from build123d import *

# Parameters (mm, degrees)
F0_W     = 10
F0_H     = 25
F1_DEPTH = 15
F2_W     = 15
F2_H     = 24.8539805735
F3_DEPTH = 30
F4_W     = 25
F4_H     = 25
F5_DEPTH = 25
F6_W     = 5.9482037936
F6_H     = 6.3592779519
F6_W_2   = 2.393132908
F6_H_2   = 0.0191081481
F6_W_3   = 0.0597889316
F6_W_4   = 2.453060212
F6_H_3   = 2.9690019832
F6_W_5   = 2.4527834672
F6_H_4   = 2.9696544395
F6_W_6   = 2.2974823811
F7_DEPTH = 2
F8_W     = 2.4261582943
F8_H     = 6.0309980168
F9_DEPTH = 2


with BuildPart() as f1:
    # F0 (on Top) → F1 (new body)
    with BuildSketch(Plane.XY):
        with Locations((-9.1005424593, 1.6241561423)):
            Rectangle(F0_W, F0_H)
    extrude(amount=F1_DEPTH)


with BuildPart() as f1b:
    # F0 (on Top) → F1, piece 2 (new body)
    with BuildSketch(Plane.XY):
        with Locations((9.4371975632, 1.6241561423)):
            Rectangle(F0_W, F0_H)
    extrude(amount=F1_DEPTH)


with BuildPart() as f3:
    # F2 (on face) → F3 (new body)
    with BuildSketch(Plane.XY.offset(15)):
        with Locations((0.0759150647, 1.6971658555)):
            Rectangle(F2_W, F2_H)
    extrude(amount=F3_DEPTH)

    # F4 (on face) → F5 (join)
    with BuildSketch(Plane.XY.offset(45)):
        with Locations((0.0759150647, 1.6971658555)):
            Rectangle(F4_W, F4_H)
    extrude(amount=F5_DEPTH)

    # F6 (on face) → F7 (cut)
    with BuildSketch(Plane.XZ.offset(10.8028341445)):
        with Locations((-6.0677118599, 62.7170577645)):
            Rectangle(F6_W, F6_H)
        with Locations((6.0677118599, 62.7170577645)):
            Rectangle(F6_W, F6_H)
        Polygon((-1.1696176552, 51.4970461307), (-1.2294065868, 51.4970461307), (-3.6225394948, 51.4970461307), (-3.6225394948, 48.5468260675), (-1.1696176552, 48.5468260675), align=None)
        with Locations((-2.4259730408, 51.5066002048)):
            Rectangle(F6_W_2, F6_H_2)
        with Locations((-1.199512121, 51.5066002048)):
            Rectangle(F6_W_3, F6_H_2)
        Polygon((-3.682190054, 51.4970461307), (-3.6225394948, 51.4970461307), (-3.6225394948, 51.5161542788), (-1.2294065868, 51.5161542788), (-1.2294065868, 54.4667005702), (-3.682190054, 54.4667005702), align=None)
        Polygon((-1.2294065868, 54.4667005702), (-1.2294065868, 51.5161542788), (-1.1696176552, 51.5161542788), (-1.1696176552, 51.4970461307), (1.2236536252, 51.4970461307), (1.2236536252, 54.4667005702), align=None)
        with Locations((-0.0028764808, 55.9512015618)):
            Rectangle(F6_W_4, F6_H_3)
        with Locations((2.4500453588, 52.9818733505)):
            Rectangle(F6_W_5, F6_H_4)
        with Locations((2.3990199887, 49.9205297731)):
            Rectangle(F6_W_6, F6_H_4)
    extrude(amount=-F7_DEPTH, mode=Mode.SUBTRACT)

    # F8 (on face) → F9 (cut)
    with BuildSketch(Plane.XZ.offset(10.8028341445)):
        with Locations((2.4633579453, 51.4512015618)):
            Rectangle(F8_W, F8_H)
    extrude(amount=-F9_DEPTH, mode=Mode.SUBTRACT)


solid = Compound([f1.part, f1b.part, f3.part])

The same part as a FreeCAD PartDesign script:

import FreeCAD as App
import Part
import Sketcher
from FreeCAD import Vector
Q = App.Units.Quantity

doc = App.newDocument("Part")
params = doc.addObject("Spreadsheet::Sheet", "Params")
for row, (alias, value) in enumerate([
    ("sketch1_width", "10 mm"),
    ("sketch1_height", "25 mm"),
    ("pad1_length", "15 mm"),
    ("sketch2_width", "10 mm"),
    ("sketch2_height", "25 mm"),
    ("pad2_length", "15 mm"),
    ("sketch3_width", "15 mm"),
    ("pad3_length", "30 mm"),
    ("sketch4_width", "25 mm"),
    ("pad4_length", "25 mm"),
    ("pocket1_length", "2 mm"),
    ("pocket2_length", "2 mm"),
], start=1):
    params.set(f"A{row}", alias)
    params.set(f"B{row}", "=" + value)
    params.setAlias(f"B{row}", alias)

body = doc.addObject("PartDesign::Body", "Body")

# Sketch on XY plane
sketch1 = body.newObject("Sketcher::SketchObject", "Sketch")
sketch1.AttachmentSupport = (doc.getObject("XY_Plane"), [""])
sketch1.MapMode = "FlatFace"
sketch1.addGeometry(Part.LineSegment(Vector(-14.100542, 14.124156, 0), Vector(-14.100542, -10.875844, 0)), False)
sketch1.addGeometry(Part.LineSegment(Vector(-14.100542, -10.875844, 0), Vector(-4.100542, -10.875844, 0)), False)
sketch1.addGeometry(Part.LineSegment(Vector(-4.100542, -10.875844, 0), Vector(-4.100542, 14.124156, 0)), False)
sketch1.addGeometry(Part.LineSegment(Vector(-4.100542, 14.124156, 0), Vector(-14.100542, 14.124156, 0)), False)
sketch1.addConstraint(Sketcher.Constraint("Coincident", 0, 2, 1, 1))
sketch1.addConstraint(Sketcher.Constraint("Coincident", 1, 2, 2, 1))
sketch1.addConstraint(Sketcher.Constraint("Coincident", 2, 2, 3, 1))
sketch1.addConstraint(Sketcher.Constraint("Coincident", 3, 2, 0, 1))
sketch1.addConstraint(Sketcher.Constraint("Vertical", 0))
sketch1.addConstraint(Sketcher.Constraint("Horizontal", 1))
sketch1.addConstraint(Sketcher.Constraint("Vertical", 2))
sketch1.addConstraint(Sketcher.Constraint("Horizontal", 3))
sketch1.addConstraint(Sketcher.Constraint("DistanceX", 1, 1, 1, 2, Q("10 mm")))
sketch1.addConstraint(Sketcher.Constraint("DistanceY", 0, 2, 0, 1, Q("25 mm")))
sketch1.addConstraint(Sketcher.Constraint("DistanceX", 0, 2, -1, 1, Q("14.100542 mm")))
sketch1.addConstraint(Sketcher.Constraint("DistanceY", 0, 2, -1, 1, Q("10.875844 mm")))
sketch1.setExpression("Constraints[8]", "Params.sketch1_width")
sketch1.setExpression("Constraints[9]", "Params.sketch1_height")
pad1 = body.newObject("PartDesign::Pad", "Pad")
pad1.Profile = sketch1
pad1.setExpression("Length", "Params.pad1_length")
body2 = doc.addObject("PartDesign::Body", "Body001")

# Sketch on XY plane
sketch2 = body2.newObject("Sketcher::SketchObject", "Sketch001")
sketch2.AttachmentSupport = (doc.getObject("XY_Plane001"), [""])
sketch2.MapMode = "FlatFace"
sketch2.addGeometry(Part.LineSegment(Vector(4.437198, 14.124156, 0), Vector(4.437198, -10.875844, 0)), False)
sketch2.addGeometry(Part.LineSegment(Vector(4.437198, -10.875844, 0), Vector(14.437198, -10.875844, 0)), False)
sketch2.addGeometry(Part.LineSegment(Vector(14.437198, -10.875844, 0), Vector(14.437198, 14.124156, 0)), False)
sketch2.addGeometry(Part.LineSegment(Vector(14.437198, 14.124156, 0), Vector(4.437198, 14.124156, 0)), False)
sketch2.addConstraint(Sketcher.Constraint("Coincident", 0, 2, 1, 1))
sketch2.addConstraint(Sketcher.Constraint("Coincident", 1, 2, 2, 1))
sketch2.addConstraint(Sketcher.Constraint("Coincident", 2, 2, 3, 1))
sketch2.addConstraint(Sketcher.Constraint("Coincident", 3, 2, 0, 1))
sketch2.addConstraint(Sketcher.Constraint("Vertical", 0))
sketch2.addConstraint(Sketcher.Constraint("Horizontal", 1))
sketch2.addConstraint(Sketcher.Constraint("Vertical", 2))
sketch2.addConstraint(Sketcher.Constraint("Horizontal", 3))
sketch2.addConstraint(Sketcher.Constraint("DistanceX", 1, 1, 1, 2, Q("10 mm")))
sketch2.addConstraint(Sketcher.Constraint("DistanceY", 0, 2, 0, 1, Q("25 mm")))
sketch2.addConstraint(Sketcher.Constraint("DistanceX", -1, 1, 0, 2, Q("4.437198 mm")))
sketch2.addConstraint(Sketcher.Constraint("DistanceY", 0, 2, -1, 1, Q("10.875844 mm")))
sketch2.setExpression("Constraints[8]", "Params.sketch2_width")
sketch2.setExpression("Constraints[9]", "Params.sketch2_height")
pad2 = body2.newObject("PartDesign::Pad", "Pad001")
pad2.Profile = sketch2
pad2.setExpression("Length", "Params.pad2_length")
body3 = doc.addObject("PartDesign::Body", "Body002")

# Sketch on XY plane
sketch3 = body3.newObject("Sketcher::SketchObject", "Sketch002")
sketch3.AttachmentSupport = (doc.getObject("XY_Plane002"), [""])
sketch3.MapMode = "FlatFace"
sketch3.AttachmentOffset = App.Placement(Vector(0, 0, 15), App.Rotation())
sketch3.addGeometry(Part.LineSegment(Vector(-7.424085, 14.124156, 0), Vector(-7.424085, -10.729824, 0)), False)
sketch3.addGeometry(Part.LineSegment(Vector(-7.424085, -10.729824, 0), Vector(7.575915, -10.729824, 0)), False)
sketch3.addGeometry(Part.LineSegment(Vector(7.575915, -10.729824, 0), Vector(7.575915, 14.124156, 0)), False)
sketch3.addGeometry(Part.LineSegment(Vector(7.575915, 14.124156, 0), Vector(-7.424085, 14.124156, 0)), False)
sketch3.addConstraint(Sketcher.Constraint("Coincident", 0, 2, 1, 1))
sketch3.addConstraint(Sketcher.Constraint("Coincident", 1, 2, 2, 1))
sketch3.addConstraint(Sketcher.Constraint("Coincident", 2, 2, 3, 1))
sketch3.addConstraint(Sketcher.Constraint("Coincident", 3, 2, 0, 1))
sketch3.addConstraint(Sketcher.Constraint("Vertical", 0))
sketch3.addConstraint(Sketcher.Constraint("Horizontal", 1))
sketch3.addConstraint(Sketcher.Constraint("Vertical", 2))
sketch3.addConstraint(Sketcher.Constraint("Horizontal", 3))
sketch3.addConstraint(Sketcher.Constraint("DistanceX", 1, 1, 1, 2, Q("15 mm")))
sketch3.addConstraint(Sketcher.Constraint("DistanceY", 0, 2, 0, 1, Q("24.853981 mm")))
sketch3.addConstraint(Sketcher.Constraint("DistanceX", 0, 2, -1, 1, Q("7.424085 mm")))
sketch3.addConstraint(Sketcher.Constraint("DistanceY", 0, 2, -1, 1, Q("10.729824 mm")))
sketch3.setExpression("Constraints[8]", "Params.sketch3_width")
pad3 = body3.newObject("PartDesign::Pad", "Pad002")
pad3.Profile = sketch3
pad3.setExpression("Length", "Params.pad3_length")

# Sketch on XY plane
sketch4 = body3.newObject("Sketcher::SketchObject", "Sketch003")
sketch4.AttachmentSupport = (doc.getObject("XY_Plane002"), [""])
sketch4.MapMode = "FlatFace"
sketch4.AttachmentOffset = App.Placement(Vector(0, 0, 45), App.Rotation())
sketch4.addGeometry(Part.LineSegment(Vector(-12.424085, 14.197166, 0), Vector(-12.424085, -10.802834, 0)), False)
sketch4.addGeometry(Part.LineSegment(Vector(-12.424085, -10.802834, 0), Vector(12.575915, -10.802834, 0)), False)
sketch4.addGeometry(Part.LineSegment(Vector(12.575915, -10.802834, 0), Vector(12.575915, 14.197166, 0)), False)
sketch4.addGeometry(Part.LineSegment(Vector(12.575915, 14.197166, 0), Vector(-12.424085, 14.197166, 0)), False)
sketch4.addConstraint(Sketcher.Constraint("Coincident", 0, 2, 1, 1))
sketch4.addConstraint(Sketcher.Constraint("Coincident", 1, 2, 2, 1))
sketch4.addConstraint(Sketcher.Constraint("Coincident", 2, 2, 3, 1))
sketch4.addConstraint(Sketcher.Constraint("Coincident", 3, 2, 0, 1))
sketch4.addConstraint(Sketcher.Constraint("Vertical", 0))
sketch4.addConstraint(Sketcher.Constraint("Horizontal", 1))
sketch4.addConstraint(Sketcher.Constraint("Vertical", 2))
sketch4.addConstraint(Sketcher.Constraint("Horizontal", 3))
sketch4.addConstraint(Sketcher.Constraint("Equal", 3, 0))
sketch4.addConstraint(Sketcher.Constraint("DistanceX", 1, 1, 1, 2, Q("25 mm")))
sketch4.addConstraint(Sketcher.Constraint("DistanceX", 0, 2, -1, 1, Q("12.424085 mm")))
sketch4.addConstraint(Sketcher.Constraint("DistanceY", 0, 2, -1, 1, Q("10.802834 mm")))
sketch4.setExpression("Constraints[9]", "Params.sketch4_width")
pad4 = body3.newObject("PartDesign::Pad", "Pad003")
pad4.Profile = sketch4
pad4.setExpression("Length", "Params.pad4_length")

# Sketch on XZ plane
sketch5 = body3.newObject("Sketcher::SketchObject", "Sketch004")
sketch5.AttachmentSupport = (doc.getObject("XZ_Plane002"), [""])
sketch5.MapMode = "FlatFace"
sketch5.AttachmentOffset = App.Placement(Vector(0, 0, 10.802834), App.Rotation())
sketch5.addGeometry(Part.LineSegment(Vector(-9.041814, 65.896697, 0), Vector(-9.041814, 59.537419, 0)), False)
sketch5.addGeometry(Part.LineSegment(Vector(-9.041814, 59.537419, 0), Vector(-3.09361, 59.537419, 0)), False)
sketch5.addGeometry(Part.LineSegment(Vector(-3.09361, 59.537419, 0), Vector(-3.09361, 65.896697, 0)), False)
sketch5.addGeometry(Part.LineSegment(Vector(-3.09361, 65.896697, 0), Vector(-9.041814, 65.896697, 0)), False)
sketch5.addGeometry(Part.LineSegment(Vector(3.09361, 65.896697, 0), Vector(3.09361, 59.537419, 0)), False)
sketch5.addGeometry(Part.LineSegment(Vector(3.09361, 59.537419, 0), Vector(9.041814, 59.537419, 0)), False)
sketch5.addGeometry(Part.LineSegment(Vector(9.041814, 59.537419, 0), Vector(9.041814, 65.896697, 0)), False)
sketch5.addGeometry(Part.LineSegment(Vector(9.041814, 65.896697, 0), Vector(3.09361, 65.896697, 0)), False)
sketch5.addGeometry(Part.LineSegment(Vector(-3.622539, 51.497046, 0), Vector(-3.622539, 48.546826, 0)), False)
sketch5.addGeometry(Part.LineSegment(Vector(-3.622539, 48.546826, 0), Vector(-1.169618, 48.546826, 0)), False)
sketch5.addGeometry(Part.LineSegment(Vector(-1.169618, 48.546826, 0), Vector(-1.169618, 51.497046, 0)), False)
sketch5.addGeometry(Part.LineSegment(Vector(-1.169618, 51.497046, 0), Vector(1.223654, 51.497046, 0)), False)
sketch5.addGeometry(Part.LineSegment(Vector(1.223654, 51.497046, 0), Vector(3.676437, 51.497046, 0)), False)
sketch5.addGeometry(Part.LineSegment(Vector(3.676437, 51.497046, 0), Vector(3.676437, 54.466701, 0)), False)
sketch5.addGeometry(Part.LineSegment(Vector(3.676437, 54.466701, 0), Vector(1.223654, 54.466701, 0)), False)
sketch5.addGeometry(Part.LineSegment(Vector(1.223654, 54.466701, 0), Vector(1.223654, 57.435703, 0)), False)
sketch5.addGeometry(Part.LineSegment(Vector(1.223654, 57.435703, 0), Vector(-1.229407, 57.435703, 0)), False)
sketch5.addGeometry(Part.LineSegment(Vector(-1.229407, 57.435703, 0), Vector(-1.229407, 54.466701, 0)), False)
sketch5.addGeometry(Part.LineSegment(Vector(-1.229407, 54.466701, 0), Vector(-3.68219, 54.466701, 0)), False)
sketch5.addGeometry(Part.LineSegment(Vector(-3.68219, 54.466701, 0), Vector(-3.68219, 51.497046, 0)), False)
sketch5.addGeometry(Part.LineSegment(Vector(-3.68219, 51.497046, 0), Vector(-3.622539, 51.497046, 0)), False)
sketch5.addGeometry(Part.LineSegment(Vector(1.250279, 51.405357, 0), Vector(1.250279, 48.435703, 0)), False)
sketch5.addGeometry(Part.LineSegment(Vector(1.250279, 48.435703, 0), Vector(3.547761, 48.435703, 0)), False)
sketch5.addGeometry(Part.LineSegment(Vector(3.547761, 48.435703, 0), Vector(3.547761, 51.405357, 0)), False)
sketch5.addGeometry(Part.LineSegment(Vector(3.547761, 51.405357, 0), Vector(1.250279, 51.405357, 0)), False)
sketch5.addConstraint(Sketcher.Constraint("Coincident", 0, 2, 1, 1))
sketch5.addConstraint(Sketcher.Constraint("Coincident", 1, 2, 2, 1))
sketch5.addConstraint(Sketcher.Constraint("Coincident", 2, 2, 3, 1))
sketch5.addConstraint(Sketcher.Constraint("Coincident", 3, 2, 0, 1))
sketch5.addConstraint(Sketcher.Constraint("Coincident", 4, 2, 5, 1))
sketch5.addConstraint(Sketcher.Constraint("Coincident", 5, 2, 6, 1))
sketch5.addConstraint(Sketcher.Constraint("Coincident", 6, 2, 7, 1))
sketch5.addConstraint(Sketcher.Constraint("Coincident", 7, 2, 4, 1))
sketch5.addConstraint(Sketcher.Constraint("Coincident", 8, 2, 9, 1))
sketch5.addConstraint(Sketcher.Constraint("Coincident", 9, 2, 10, 1))
sketch5.addConstraint(Sketcher.Constraint("Coincident", 10, 2, 11, 1))
sketch5.addConstraint(Sketcher.Constraint("Coincident", 11, 2, 12, 1))
sketch5.addConstraint(Sketcher.Constraint("Coincident", 12, 2, 13, 1))
sketch5.addConstraint(Sketcher.Constraint("Coincident", 13, 2, 14, 1))
sketch5.addConstraint(Sketcher.Constraint("Coincident", 14, 2, 15, 1))
sketch5.addConstraint(Sketcher.Constraint("Coincident", 15, 2, 16, 1))
sketch5.addConstraint(Sketcher.Constraint("Coincident", 16, 2, 17, 1))
sketch5.addConstraint(Sketcher.Constraint("Coincident", 17, 2, 18, 1))
sketch5.addConstraint(Sketcher.Constraint("Coincident", 18, 2, 19, 1))
sketch5.addConstraint(Sketcher.Constraint("Coincident", 19, 2, 20, 1))
sketch5.addConstraint(Sketcher.Constraint("Coincident", 20, 2, 8, 1))
sketch5.addConstraint(Sketcher.Constraint("Coincident", 21, 2, 22, 1))
sketch5.addConstraint(Sketcher.Constraint("Coincident", 22, 2, 23, 1))
sketch5.addConstraint(Sketcher.Constraint("Coincident", 23, 2, 24, 1))
sketch5.addConstraint(Sketcher.Constraint("Coincident", 24, 2, 21, 1))
sketch5.addConstraint(Sketcher.Constraint("Vertical", 0))
sketch5.addConstraint(Sketcher.Constraint("Horizontal", 1))
sketch5.addConstraint(Sketcher.Constraint("Vertical", 2))
sketch5.addConstraint(Sketcher.Constraint("Horizontal", 3))
sketch5.addConstraint(Sketcher.Constraint("Vertical", 4))
sketch5.addConstraint(Sketcher.Constraint("Horizontal", 5))
sketch5.addConstraint(Sketcher.Constraint("Vertical", 6))
sketch5.addConstraint(Sketcher.Constraint("Horizontal", 7))
sketch5.addConstraint(Sketcher.Constraint("Vertical", 8))
sketch5.addConstraint(Sketcher.Constraint("Horizontal", 9))
sketch5.addConstraint(Sketcher.Constraint("Vertical", 10))
sketch5.addConstraint(Sketcher.Constraint("Horizontal", 11))
sketch5.addConstraint(Sketcher.Constraint("Horizontal", 12))
sketch5.addConstraint(Sketcher.Constraint("Vertical", 13))
sketch5.addConstraint(Sketcher.Constraint("Horizontal", 14))
sketch5.addConstraint(Sketcher.Constraint("Vertical", 15))
sketch5.addConstraint(Sketcher.Constraint("Horizontal", 16))
sketch5.addConstraint(Sketcher.Constraint("Vertical", 17))
sketch5.addConstraint(Sketcher.Constraint("Horizontal", 18))
sketch5.addConstraint(Sketcher.Constraint("Vertical", 19))
sketch5.addConstraint(Sketcher.Constraint("Horizontal", 20))
sketch5.addConstraint(Sketcher.Constraint("Vertical", 21))
sketch5.addConstraint(Sketcher.Constraint("Horizontal", 22))
sketch5.addConstraint(Sketcher.Constraint("Vertical", 23))
sketch5.addConstraint(Sketcher.Constraint("Horizontal", 24))
sketch5.addConstraint(Sketcher.Constraint("Symmetric", 1, 2, 4, 2, -2))
sketch5.addConstraint(Sketcher.Constraint("Symmetric", 3, 2, 6, 2, -2))
sketch5.addConstraint(Sketcher.Constraint("Horizontal", 14, 2, 17, 2))
sketch5.addConstraint(Sketcher.Constraint("Horizontal", 12, 2, 19, 2))
sketch5.addConstraint(Sketcher.Constraint("Vertical", 11, 2, 14, 2))
sketch5.addConstraint(Sketcher.Constraint("Equal", 14, 18))
sketch5.addConstraint(Sketcher.Constraint("Equal", 19, 21))
sketch5.addConstraint(Sketcher.Constraint("DistanceY", 15, 1, 15, 2, Q("2.969002 mm")))
sketch5.addConstraint(Sketcher.Constraint("DistanceX", 9, 1, 9, 2, Q("2.452922 mm")))
sketch5.addConstraint(Sketcher.Constraint("DistanceX", 11, 1, 11, 2, Q("2.393271 mm")))
sketch5.addConstraint(Sketcher.Constraint("DistanceX", 16, 2, 16, 1, Q("2.45306 mm")))
sketch5.addConstraint(Sketcher.Constraint("DistanceX", 20, 1, 20, 2, Q("0.059651 mm")))
sketch5.addConstraint(Sketcher.Constraint("DistanceY", 8, 2, 8, 1, Q("2.95022 mm")))
sketch5.addConstraint(Sketcher.Constraint("DistanceY", -1, 1, 13, 2, Q("54.466701 mm")))
sketch5.addConstraint(Sketcher.Constraint("DistanceX", 1, 1, 1, 2, Q("5.948204 mm")))
sketch5.addConstraint(Sketcher.Constraint("DistanceX", 22, 1, 22, 2, Q("2.297482 mm")))
sketch5.addConstraint(Sketcher.Constraint("DistanceY", 0, 2, 0, 1, Q("6.359278 mm")))
sketch5.addConstraint(Sketcher.Constraint("DistanceY", 13, 1, 13, 2, Q("2.969654 mm")))
sketch5.addConstraint(Sketcher.Constraint("DistanceY", -1, 1, 0, 2, Q("59.537419 mm")))
sketch5.addConstraint(Sketcher.Constraint("DistanceX", 1, 2, -1, 1, Q("3.09361 mm")))
sketch5.addConstraint(Sketcher.Constraint("DistanceX", 8, 2, -1, 1, Q("3.622539 mm")))
sketch5.addConstraint(Sketcher.Constraint("DistanceX", -1, 1, 21, 2, Q("1.250279 mm")))
sketch5.addConstraint(Sketcher.Constraint("DistanceY", 23, 2, 12, 2, Q("0.091689 mm")))
pocket1 = body3.newObject("PartDesign::Pocket", "Pocket")
pocket1.Profile = sketch5
pocket1.setExpression("Length", "Params.pocket1_length")

# Sketch on XZ plane
sketch6 = body3.newObject("Sketcher::SketchObject", "Sketch005")
sketch6.AttachmentSupport = (doc.getObject("XZ_Plane002"), [""])
sketch6.MapMode = "FlatFace"
sketch6.AttachmentOffset = App.Placement(Vector(0, 0, 10.802834), App.Rotation())
sketch6.addGeometry(Part.LineSegment(Vector(1.250279, 54.466701, 0), Vector(1.250279, 48.435703, 0)), False)
sketch6.addGeometry(Part.LineSegment(Vector(1.250279, 48.435703, 0), Vector(3.676437, 48.435703, 0)), False)
sketch6.addGeometry(Part.LineSegment(Vector(3.676437, 48.435703, 0), Vector(3.676437, 54.466701, 0)), False)
sketch6.addGeometry(Part.LineSegment(Vector(3.676437, 54.466701, 0), Vector(1.250279, 54.466701, 0)), False)
sketch6.addConstraint(Sketcher.Constraint("Coincident", 0, 2, 1, 1))
sketch6.addConstraint(Sketcher.Constraint("Coincident", 1, 2, 2, 1))
sketch6.addConstraint(Sketcher.Constraint("Coincident", 2, 2, 3, 1))
sketch6.addConstraint(Sketcher.Constraint("Coincident", 3, 2, 0, 1))
sketch6.addConstraint(Sketcher.Constraint("Vertical", 0))
sketch6.addConstraint(Sketcher.Constraint("Horizontal", 1))
sketch6.addConstraint(Sketcher.Constraint("Vertical", 2))
sketch6.addConstraint(Sketcher.Constraint("Horizontal", 3))
sketch6.addConstraint(Sketcher.Constraint("DistanceY", 0, 2, 0, 1, Q("6.030998 mm")))
sketch6.addConstraint(Sketcher.Constraint("DistanceX", 1, 1, 1, 2, Q("2.426158 mm")))
sketch6.addConstraint(Sketcher.Constraint("DistanceY", -1, 1, 2, 2, Q("54.466701 mm")))
sketch6.addConstraint(Sketcher.Constraint("DistanceX", -1, 1, 0, 2, Q("1.250279 mm")))
pocket2 = body3.newObject("PartDesign::Pocket", "Pocket001")
pocket2.Profile = sketch6
pocket2.setExpression("Length", "Params.pocket2_length")

doc.recompute()
